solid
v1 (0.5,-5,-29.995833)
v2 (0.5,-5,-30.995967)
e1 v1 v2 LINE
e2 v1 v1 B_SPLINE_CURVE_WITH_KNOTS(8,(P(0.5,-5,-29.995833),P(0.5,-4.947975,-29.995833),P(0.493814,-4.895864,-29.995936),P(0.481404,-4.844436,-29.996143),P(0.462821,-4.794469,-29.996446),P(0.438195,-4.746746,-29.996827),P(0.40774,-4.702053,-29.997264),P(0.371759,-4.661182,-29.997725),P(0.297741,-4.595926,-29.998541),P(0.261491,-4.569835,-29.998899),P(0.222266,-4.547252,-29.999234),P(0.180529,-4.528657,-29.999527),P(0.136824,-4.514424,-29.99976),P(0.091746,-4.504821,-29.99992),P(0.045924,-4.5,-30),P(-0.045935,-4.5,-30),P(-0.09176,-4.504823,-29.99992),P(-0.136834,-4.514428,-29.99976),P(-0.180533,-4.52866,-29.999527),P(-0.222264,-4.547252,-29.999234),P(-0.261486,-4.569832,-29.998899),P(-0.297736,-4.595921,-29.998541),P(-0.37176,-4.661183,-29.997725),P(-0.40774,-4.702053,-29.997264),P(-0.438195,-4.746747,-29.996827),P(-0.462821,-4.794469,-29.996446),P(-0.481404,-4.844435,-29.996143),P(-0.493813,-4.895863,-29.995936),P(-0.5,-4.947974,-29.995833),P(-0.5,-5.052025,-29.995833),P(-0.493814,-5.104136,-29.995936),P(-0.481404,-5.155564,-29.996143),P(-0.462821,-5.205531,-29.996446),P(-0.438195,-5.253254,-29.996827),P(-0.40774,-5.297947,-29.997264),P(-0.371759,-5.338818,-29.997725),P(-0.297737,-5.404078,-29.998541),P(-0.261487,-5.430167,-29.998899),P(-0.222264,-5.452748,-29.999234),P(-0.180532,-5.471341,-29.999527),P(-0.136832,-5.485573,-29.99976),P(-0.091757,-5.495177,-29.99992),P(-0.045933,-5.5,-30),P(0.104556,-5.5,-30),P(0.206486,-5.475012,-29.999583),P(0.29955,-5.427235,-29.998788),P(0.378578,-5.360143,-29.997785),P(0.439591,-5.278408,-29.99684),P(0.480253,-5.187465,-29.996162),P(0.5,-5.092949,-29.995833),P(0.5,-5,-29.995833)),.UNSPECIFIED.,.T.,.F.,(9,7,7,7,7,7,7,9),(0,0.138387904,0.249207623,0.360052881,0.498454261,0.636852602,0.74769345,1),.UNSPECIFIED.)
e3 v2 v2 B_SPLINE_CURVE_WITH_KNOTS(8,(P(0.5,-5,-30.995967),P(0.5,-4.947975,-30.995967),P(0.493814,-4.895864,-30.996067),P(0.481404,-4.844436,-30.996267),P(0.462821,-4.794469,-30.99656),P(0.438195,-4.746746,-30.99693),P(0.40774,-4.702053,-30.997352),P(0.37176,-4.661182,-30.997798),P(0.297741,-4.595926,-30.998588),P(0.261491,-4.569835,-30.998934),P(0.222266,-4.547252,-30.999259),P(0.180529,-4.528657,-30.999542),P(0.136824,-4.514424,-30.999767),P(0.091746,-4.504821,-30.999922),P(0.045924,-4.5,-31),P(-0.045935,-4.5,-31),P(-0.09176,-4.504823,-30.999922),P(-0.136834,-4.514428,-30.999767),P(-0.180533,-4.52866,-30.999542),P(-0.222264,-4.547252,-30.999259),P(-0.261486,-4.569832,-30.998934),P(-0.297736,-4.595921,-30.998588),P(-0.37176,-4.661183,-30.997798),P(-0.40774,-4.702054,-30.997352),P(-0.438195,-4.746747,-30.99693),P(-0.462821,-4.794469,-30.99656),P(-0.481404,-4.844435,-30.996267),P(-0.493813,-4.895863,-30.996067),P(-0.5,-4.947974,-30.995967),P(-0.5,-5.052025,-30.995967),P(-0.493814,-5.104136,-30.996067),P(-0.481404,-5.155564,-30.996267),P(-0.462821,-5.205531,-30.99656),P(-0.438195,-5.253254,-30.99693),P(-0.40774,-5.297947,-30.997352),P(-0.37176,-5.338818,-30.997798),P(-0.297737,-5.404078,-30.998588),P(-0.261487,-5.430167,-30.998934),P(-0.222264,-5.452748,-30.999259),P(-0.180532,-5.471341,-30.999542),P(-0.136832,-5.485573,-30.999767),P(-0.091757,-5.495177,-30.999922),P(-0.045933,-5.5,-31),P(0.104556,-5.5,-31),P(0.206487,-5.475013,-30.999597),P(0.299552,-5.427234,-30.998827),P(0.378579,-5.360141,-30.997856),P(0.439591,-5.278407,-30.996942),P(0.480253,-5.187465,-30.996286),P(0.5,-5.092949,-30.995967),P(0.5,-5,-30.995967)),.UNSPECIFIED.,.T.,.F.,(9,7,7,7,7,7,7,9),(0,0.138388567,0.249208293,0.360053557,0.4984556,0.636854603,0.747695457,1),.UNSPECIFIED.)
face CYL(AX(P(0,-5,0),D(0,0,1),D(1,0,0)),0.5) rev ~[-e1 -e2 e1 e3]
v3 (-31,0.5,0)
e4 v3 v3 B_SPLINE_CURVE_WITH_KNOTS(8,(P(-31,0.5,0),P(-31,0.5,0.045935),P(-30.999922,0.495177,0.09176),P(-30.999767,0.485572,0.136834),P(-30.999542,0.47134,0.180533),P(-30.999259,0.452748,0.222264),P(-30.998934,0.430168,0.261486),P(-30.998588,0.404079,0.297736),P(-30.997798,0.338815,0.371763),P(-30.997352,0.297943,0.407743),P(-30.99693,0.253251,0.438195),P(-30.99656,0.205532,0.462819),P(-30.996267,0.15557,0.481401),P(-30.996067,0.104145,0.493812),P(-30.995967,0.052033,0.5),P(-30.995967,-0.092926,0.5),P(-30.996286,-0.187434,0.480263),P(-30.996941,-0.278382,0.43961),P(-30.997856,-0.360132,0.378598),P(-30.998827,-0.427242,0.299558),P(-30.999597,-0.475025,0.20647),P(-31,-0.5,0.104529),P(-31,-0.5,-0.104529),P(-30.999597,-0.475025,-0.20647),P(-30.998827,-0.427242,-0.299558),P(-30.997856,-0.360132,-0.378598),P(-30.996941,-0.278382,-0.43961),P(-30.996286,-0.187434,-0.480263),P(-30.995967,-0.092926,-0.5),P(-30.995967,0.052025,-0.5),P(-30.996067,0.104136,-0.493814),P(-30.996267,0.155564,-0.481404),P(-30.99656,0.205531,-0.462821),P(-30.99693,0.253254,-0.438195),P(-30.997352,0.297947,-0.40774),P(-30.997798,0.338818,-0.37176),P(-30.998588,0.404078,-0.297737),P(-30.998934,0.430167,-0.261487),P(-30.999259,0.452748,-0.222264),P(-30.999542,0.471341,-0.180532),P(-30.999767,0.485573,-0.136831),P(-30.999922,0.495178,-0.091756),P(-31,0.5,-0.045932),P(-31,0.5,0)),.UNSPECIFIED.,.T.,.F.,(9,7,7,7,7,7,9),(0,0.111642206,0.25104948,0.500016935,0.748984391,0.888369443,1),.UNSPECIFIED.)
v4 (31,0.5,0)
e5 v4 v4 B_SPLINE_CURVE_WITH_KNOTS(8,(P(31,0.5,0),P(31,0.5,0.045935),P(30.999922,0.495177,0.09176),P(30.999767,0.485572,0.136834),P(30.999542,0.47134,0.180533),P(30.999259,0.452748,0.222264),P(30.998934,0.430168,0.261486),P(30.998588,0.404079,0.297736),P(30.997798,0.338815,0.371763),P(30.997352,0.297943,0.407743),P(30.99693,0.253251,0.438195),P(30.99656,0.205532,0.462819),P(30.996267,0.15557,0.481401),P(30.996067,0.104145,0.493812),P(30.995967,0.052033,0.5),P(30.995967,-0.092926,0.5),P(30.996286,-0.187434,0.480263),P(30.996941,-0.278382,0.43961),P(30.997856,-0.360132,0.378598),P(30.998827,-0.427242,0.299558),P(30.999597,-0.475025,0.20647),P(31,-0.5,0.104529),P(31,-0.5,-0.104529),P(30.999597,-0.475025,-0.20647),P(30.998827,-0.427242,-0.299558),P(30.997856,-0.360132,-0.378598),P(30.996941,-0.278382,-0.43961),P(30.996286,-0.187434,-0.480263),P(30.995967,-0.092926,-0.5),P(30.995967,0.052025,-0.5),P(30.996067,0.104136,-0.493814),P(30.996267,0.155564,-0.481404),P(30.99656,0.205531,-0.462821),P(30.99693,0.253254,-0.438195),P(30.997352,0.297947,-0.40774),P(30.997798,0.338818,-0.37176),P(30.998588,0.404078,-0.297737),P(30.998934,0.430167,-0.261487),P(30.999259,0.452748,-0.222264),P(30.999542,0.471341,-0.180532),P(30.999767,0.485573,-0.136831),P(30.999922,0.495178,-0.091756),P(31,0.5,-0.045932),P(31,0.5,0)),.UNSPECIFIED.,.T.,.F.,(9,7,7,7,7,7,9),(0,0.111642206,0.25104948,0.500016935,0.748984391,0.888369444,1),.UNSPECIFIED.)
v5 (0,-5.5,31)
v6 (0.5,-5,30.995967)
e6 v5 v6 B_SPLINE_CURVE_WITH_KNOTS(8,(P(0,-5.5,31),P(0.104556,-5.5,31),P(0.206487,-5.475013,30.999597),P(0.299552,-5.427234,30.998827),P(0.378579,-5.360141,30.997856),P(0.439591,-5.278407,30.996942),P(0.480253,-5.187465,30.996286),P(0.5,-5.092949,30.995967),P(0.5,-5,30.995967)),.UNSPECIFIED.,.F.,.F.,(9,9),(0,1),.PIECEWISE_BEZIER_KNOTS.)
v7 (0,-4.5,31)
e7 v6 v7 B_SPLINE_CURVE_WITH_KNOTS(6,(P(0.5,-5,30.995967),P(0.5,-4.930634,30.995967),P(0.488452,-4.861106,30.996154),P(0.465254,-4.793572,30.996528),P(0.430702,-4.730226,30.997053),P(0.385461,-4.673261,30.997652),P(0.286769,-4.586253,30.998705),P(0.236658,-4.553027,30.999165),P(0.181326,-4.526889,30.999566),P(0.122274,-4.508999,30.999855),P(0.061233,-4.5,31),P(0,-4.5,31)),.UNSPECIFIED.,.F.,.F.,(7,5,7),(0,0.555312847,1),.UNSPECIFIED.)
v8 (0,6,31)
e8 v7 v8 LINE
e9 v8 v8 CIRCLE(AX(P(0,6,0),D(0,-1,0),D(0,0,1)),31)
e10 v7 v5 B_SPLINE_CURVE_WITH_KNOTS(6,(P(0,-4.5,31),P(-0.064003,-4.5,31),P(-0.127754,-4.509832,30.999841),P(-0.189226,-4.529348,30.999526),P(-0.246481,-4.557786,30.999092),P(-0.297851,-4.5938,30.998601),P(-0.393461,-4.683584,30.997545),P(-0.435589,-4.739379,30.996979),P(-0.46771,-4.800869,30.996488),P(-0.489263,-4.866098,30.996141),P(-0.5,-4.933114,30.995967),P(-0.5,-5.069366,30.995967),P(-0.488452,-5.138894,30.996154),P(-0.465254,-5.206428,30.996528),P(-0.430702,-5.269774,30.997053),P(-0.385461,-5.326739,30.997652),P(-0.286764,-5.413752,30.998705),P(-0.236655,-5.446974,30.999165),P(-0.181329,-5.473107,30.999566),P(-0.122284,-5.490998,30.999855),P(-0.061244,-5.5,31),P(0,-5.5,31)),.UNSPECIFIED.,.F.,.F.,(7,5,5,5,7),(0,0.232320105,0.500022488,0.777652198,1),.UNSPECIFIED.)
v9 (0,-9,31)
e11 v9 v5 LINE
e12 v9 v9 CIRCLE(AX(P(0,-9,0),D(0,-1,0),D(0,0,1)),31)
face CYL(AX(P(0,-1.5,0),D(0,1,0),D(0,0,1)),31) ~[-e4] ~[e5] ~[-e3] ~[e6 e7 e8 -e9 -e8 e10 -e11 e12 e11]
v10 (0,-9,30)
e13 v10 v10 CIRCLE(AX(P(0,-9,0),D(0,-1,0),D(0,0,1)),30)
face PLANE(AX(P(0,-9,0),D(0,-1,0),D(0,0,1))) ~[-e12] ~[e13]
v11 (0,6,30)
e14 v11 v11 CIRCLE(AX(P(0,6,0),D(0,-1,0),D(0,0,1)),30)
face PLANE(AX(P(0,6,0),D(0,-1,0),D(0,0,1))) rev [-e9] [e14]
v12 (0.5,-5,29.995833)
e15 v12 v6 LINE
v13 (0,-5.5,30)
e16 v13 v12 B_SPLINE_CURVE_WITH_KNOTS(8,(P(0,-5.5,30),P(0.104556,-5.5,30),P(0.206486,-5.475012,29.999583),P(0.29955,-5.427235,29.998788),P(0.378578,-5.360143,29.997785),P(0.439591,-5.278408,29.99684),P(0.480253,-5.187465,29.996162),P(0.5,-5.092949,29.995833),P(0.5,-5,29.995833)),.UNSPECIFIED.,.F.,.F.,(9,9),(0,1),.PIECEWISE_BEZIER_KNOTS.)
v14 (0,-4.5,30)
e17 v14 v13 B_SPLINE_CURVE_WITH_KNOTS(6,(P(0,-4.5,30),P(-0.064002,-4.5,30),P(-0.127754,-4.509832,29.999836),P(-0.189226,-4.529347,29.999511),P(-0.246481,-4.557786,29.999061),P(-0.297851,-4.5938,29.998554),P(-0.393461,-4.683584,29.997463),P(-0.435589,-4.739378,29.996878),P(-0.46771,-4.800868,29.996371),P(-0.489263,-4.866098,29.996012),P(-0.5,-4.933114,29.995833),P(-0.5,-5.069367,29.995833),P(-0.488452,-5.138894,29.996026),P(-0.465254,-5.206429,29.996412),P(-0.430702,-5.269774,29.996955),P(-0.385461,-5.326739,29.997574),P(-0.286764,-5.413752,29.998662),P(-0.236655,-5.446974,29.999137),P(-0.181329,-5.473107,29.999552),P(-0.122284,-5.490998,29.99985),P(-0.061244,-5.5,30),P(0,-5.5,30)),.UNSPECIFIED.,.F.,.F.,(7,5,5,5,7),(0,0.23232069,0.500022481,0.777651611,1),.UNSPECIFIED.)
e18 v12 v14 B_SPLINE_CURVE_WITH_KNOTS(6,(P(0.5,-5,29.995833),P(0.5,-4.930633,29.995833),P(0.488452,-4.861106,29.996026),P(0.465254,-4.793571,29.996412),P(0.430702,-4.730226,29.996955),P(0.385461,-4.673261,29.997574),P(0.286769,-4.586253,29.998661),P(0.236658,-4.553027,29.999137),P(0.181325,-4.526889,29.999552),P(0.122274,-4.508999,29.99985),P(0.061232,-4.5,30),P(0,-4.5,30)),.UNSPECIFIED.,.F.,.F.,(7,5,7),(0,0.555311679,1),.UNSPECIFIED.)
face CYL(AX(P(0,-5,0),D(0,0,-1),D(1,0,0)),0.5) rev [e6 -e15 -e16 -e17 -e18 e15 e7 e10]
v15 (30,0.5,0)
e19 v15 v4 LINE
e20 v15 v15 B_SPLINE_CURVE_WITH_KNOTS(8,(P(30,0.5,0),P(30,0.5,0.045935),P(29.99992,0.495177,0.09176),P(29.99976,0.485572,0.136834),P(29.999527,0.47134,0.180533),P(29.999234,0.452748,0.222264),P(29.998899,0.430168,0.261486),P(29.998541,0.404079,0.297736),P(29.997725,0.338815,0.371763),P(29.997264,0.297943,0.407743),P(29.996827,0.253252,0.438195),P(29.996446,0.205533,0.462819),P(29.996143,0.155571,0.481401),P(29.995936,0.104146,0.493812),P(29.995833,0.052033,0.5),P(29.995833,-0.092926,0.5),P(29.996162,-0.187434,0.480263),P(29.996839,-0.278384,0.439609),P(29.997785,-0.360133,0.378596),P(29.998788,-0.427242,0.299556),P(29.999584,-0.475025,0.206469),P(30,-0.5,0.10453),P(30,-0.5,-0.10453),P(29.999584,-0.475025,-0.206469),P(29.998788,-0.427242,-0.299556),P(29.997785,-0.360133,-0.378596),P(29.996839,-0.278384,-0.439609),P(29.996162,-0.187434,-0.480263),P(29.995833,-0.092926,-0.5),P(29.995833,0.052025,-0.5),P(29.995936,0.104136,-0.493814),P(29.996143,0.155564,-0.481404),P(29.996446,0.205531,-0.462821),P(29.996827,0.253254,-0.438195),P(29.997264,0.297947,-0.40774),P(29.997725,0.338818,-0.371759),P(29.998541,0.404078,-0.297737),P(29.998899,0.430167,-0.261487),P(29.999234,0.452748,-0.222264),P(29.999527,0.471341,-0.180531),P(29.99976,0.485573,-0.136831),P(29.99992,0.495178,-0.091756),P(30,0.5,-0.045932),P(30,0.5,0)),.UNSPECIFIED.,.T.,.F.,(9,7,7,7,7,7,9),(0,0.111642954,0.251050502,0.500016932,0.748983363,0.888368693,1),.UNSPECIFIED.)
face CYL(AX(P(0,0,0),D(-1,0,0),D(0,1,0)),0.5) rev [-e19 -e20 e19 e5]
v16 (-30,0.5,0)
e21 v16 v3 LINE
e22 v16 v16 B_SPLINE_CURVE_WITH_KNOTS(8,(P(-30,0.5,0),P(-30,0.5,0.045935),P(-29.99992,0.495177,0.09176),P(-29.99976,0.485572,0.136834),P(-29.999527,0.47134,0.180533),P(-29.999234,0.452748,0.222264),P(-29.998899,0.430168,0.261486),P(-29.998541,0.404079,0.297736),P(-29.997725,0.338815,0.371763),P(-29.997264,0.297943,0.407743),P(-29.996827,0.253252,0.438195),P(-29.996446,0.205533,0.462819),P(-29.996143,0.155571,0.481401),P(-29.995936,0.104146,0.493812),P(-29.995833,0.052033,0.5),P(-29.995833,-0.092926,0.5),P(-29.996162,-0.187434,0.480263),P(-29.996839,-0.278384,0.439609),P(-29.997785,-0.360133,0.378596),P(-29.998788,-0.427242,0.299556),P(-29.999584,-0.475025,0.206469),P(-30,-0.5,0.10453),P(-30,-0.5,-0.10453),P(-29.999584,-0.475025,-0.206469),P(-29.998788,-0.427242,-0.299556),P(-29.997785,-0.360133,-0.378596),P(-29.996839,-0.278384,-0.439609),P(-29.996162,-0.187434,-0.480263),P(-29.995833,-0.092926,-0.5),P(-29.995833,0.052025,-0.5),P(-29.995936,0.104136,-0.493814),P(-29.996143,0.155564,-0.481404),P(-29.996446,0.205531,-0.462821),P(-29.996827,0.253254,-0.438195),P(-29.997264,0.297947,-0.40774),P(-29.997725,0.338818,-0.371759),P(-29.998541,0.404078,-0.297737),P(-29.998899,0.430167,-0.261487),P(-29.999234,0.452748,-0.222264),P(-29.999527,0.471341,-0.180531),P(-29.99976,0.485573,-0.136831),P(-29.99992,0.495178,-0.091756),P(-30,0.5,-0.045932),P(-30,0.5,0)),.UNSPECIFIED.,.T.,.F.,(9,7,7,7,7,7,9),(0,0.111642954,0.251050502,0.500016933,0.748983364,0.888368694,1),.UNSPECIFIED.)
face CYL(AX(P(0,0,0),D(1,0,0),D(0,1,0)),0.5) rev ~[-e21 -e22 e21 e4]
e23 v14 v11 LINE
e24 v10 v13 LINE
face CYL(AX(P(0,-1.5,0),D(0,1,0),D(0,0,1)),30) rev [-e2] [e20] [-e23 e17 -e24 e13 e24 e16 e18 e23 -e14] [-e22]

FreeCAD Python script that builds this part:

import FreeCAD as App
import Part
import Sketcher
Q = App.Units.Quantity

doc = App.newDocument("Part")
body = doc.addObject("PartDesign::Body", "Body")

# Sketch on YZ plane
sketch1 = body.newObject("Sketcher::SketchObject", "Sketch")
sketch1.AttachmentSupport = (doc.getObject("YZ_Plane"), [""])
sketch1.MapMode = "FlatFace"
sketch1.addGeometry([
    Part.LineSegment(App.Vector(-9, 31, 0), App.Vector(-9, 30, 0)),
    Part.LineSegment(App.Vector(-9, 30, 0), App.Vector(6, 30, 0)),
    Part.LineSegment(App.Vector(6, 30, 0), App.Vector(6, 31, 0)),
    Part.LineSegment(App.Vector(6, 31, 0), App.Vector(-9, 31, 0)),
], False)
sketch1.addConstraint([
    Sketcher.Constraint("Coincident", 0, 2, 1, 1),
    Sketcher.Constraint("Coincident", 1, 2, 2, 1),
    Sketcher.Constraint("Coincident", 2, 2, 3, 1),
    Sketcher.Constraint("Coincident", 3, 2, 0, 1),
    Sketcher.Constraint("Vertical", 0),
    Sketcher.Constraint("Horizontal", 1),
    Sketcher.Constraint("Vertical", 2),
    Sketcher.Constraint("Horizontal", 3),
    Sketcher.Constraint("DistanceX", 1, 1, 1, 2, Q("15 mm")),
    Sketcher.Constraint("DistanceY", 0, 2, 0, 1, Q("1 mm")),
    Sketcher.Constraint("DistanceX", 0, 2, -1, 1, Q("9 mm")),
    Sketcher.Constraint("DistanceY", -1, 1, 0, 2, Q("30 mm")),
])
revolution = body.newObject("PartDesign::Revolution", "Revolution")
revolution.Profile = sketch1
revolution.ReferenceAxis = (sketch1, ["H_Axis"])
revolution.Angle = 360

# Sketch on YZ plane
sketch2 = body.newObject("Sketcher::SketchObject", "Sketch001")
sketch2.AttachmentSupport = (doc.getObject("YZ_Plane"), [""])
sketch2.MapMode = "FlatFace"
sketch2.addGeometry(Part.Circle(App.Vector(0, 0, 0), App.Vector(0, 0, 1), 0.5), False)
sketch2.addConstraint([
    Sketcher.Constraint("Coincident", 0, 3, -1, 1),
    Sketcher.Constraint("Diameter", 0, Q("1 mm")),
])
pocket1 = body.newObject("PartDesign::Pocket", "Pocket")
pocket1.Profile = sketch2
pocket1.Type = "ThroughAll"
pocket1.Midplane = True

# Sketch on XY plane
sketch3 = body.newObject("Sketcher::SketchObject", "Sketch002")
sketch3.AttachmentSupport = (doc.getObject("XY_Plane"), [""])
sketch3.MapMode = "FlatFace"
sketch3.addGeometry(Part.Circle(App.Vector(0, -5, 0), App.Vector(0, 0, 1), 0.5), False)
sketch3.addConstraint([
    Sketcher.Constraint("PointOnObject", 0, 3, -2),
    Sketcher.Constraint("Diameter", 0, Q("1 mm")),
    Sketcher.Constraint("DistanceY", 0, 3, -1, 1, Q("5 mm")),
])
pocket2 = body.newObject("PartDesign::Pocket", "Pocket001")
pocket2.Profile = sketch3
pocket2.Type = "ThroughAll"
pocket2.Midplane = True

doc.recompute()
